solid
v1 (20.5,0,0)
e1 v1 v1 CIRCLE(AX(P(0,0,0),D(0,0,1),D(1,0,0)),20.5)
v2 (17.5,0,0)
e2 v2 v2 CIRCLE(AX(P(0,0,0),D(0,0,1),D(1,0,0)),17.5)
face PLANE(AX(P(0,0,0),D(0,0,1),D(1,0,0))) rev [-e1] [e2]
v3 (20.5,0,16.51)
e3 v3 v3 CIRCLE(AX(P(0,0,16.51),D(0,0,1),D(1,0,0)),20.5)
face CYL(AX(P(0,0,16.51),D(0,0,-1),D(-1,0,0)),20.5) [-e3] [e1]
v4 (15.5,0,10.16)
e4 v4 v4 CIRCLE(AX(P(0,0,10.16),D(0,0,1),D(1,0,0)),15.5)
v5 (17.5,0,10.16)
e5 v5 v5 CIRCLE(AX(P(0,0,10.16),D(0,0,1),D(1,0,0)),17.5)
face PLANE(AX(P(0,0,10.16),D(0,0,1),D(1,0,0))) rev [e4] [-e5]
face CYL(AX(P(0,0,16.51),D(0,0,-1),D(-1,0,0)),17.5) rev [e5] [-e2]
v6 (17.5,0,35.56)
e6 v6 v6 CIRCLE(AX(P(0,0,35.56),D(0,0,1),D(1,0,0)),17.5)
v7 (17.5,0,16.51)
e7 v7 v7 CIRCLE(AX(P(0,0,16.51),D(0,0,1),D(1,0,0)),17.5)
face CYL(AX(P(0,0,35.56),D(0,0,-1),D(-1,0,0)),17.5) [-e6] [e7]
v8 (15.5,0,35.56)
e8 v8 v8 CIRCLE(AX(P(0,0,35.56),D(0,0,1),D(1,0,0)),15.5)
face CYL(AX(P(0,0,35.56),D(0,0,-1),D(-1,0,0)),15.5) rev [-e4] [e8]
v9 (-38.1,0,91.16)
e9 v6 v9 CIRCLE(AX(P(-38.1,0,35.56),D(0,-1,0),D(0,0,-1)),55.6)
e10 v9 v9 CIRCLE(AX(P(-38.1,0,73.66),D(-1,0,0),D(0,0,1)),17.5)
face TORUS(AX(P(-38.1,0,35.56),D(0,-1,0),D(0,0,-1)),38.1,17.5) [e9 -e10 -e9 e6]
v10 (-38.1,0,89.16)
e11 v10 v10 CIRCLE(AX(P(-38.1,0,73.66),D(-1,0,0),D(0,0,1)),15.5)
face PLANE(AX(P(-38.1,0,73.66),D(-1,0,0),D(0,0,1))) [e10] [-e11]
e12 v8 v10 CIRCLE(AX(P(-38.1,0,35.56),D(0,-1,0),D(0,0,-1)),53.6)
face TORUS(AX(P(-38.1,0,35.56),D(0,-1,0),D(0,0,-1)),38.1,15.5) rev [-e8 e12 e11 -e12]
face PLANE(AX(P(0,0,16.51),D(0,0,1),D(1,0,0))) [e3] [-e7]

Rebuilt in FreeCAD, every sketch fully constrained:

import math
import FreeCAD as App
import Part
import Sketcher
from FreeCAD import Vector
Q = App.Units.Quantity

doc = App.newDocument("Part")
params = doc.addObject("Spreadsheet::Sheet", "Params")
for row, (alias, value) in enumerate([
    ("sketch1_diameter", "41 mm"),
    ("sketch1_diameter2", "35 mm"),
    ("pad1_length", "16.51 mm"),
    ("sketch2_diameter", "35 mm"),
    ("sketch2_diameter2", "31 mm"),
    ("sketch3_radius", "38.1 mm"),
    ("sketch3_height", "25.4 mm"),
], start=1):
    params.set(f"A{row}", alias)
    params.set(f"B{row}", "=" + value)
    params.setAlias(f"B{row}", alias)

body = doc.addObject("PartDesign::Body", "Body")

# Sketch on XY plane
sketch1 = doc.addObject("Sketcher::SketchObject", "Sketch")
body.addObject(sketch1)
sketch1.AttachmentSupport = (doc.XY_Plane, [""])
sketch1.MapMode = "FlatFace"
sketch1.addGeometry([
    Part.Circle(Vector(0, 0, 0), Vector(0, 0, 1), 20),
    Part.Circle(Vector(0, 0, 0), Vector(0, 0, 1), 18),
], False)
sketch1.addConstraint([
    Sketcher.Constraint("Coincident", 0, 3, -1, 1),
    Sketcher.Constraint("Coincident", 1, 3, -1, 1),
    Sketcher.Constraint("Diameter", 0, Q("41 mm")),
    Sketcher.Constraint("Diameter", 1, Q("35 mm")),
])
sketch1.setExpression("Constraints[2]", "Params.sketch1_diameter")
sketch1.setExpression("Constraints[3]", "Params.sketch1_diameter2")
pad1 = doc.addObject("PartDesign::Pad", "Pad")
body.addObject(pad1)
pad1.Profile = sketch1
pad1.setExpression("Length", "Params.pad1_length")

# Sketch on XY plane
sketch2 = doc.addObject("Sketcher::SketchObject", "Sketch001")
body.addObject(sketch2)
sketch2.AttachmentSupport = (doc.XY_Plane, [""])
sketch2.MapMode = "FlatFace"
sketch2.AttachmentOffset = App.Placement(Vector(0, 0, 10.16), App.Rotation())
sketch2.addGeometry([
    Part.Circle(Vector(0, 0, 0), Vector(0, 0, 1), 18),
    Part.Circle(Vector(0, 0, 0), Vector(0, 0, 1), 16),
], False)
sketch2.addConstraint([
    Sketcher.Constraint("Coincident", 0, 3, -1, 1),
    Sketcher.Constraint("Coincident", 1, 3, -1, 1),
    Sketcher.Constraint("Diameter", 0, Q("35 mm")),
    Sketcher.Constraint("Diameter", 1, Q("31 mm")),
])
sketch2.setExpression("Constraints[2]", "Params.sketch2_diameter")
sketch2.setExpression("Constraints[3]", "Params.sketch2_diameter2")

# Sketch on XZ plane
sketch3 = doc.addObject("Sketcher::SketchObject", "Sketch002")
body.addObject(sketch3)
sketch3.AttachmentSupport = (doc.XZ_Plane, [""])
sketch3.MapMode = "FlatFace"
sketch3.addGeometry([
    Part.LineSegment(Vector(0, 10, 0), Vector(0, 36, 0)),
    Part.ArcOfCircle(Part.Circle(Vector(-38, 36, 0), Vector(0, 0, 1), 38), math.radians(0), math.radians(90)),
], False)
sketch3.addConstraint([
    Sketcher.Constraint("Tangent", 0, 2, 1, 1),
    Sketcher.Constraint("Vertical", 0),
    Sketcher.Constraint("PointOnObject", 0, 1, -2),
    Sketcher.Constraint("Radius", 1, Q("38.1 mm")),
    Sketcher.Constraint("DistanceY", 0, 1, 0, 2, Q("25.4 mm")),
    Sketcher.Constraint("DistanceX", 1, 2, -1, 1, Q("38.1 mm")),
    Sketcher.Constraint("DistanceY", -1, 1, 1, 3, Q("35.56 mm")),
])
sketch3.setExpression("Constraints[3]", "Params.sketch3_radius")
sketch3.setExpression("Constraints[4]", "Params.sketch3_height")
doc.recompute()

additivepipe = doc.addObject("PartDesign::AdditivePipe", "AdditivePipe")
body.addObject(additivepipe)
additivepipe.Profile = sketch2
additivepipe.Spine = (sketch3, ["Edge1", "Edge2"])

doc.recompute()
